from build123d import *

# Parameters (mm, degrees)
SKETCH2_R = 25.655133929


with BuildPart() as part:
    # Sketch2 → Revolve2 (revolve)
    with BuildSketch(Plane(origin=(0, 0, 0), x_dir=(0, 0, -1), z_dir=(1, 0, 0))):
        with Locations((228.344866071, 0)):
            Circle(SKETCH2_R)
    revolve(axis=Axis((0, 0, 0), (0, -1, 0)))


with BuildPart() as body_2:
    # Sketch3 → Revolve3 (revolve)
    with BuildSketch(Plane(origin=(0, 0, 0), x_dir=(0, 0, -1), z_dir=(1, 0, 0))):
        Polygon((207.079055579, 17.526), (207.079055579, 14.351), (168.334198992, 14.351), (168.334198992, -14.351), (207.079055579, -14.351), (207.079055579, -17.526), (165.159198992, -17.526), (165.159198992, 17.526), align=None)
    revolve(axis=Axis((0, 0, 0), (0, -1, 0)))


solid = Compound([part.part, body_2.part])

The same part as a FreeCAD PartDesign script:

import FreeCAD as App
import Part
import Sketcher
from FreeCAD import Vector
Q = App.Units.Quantity


def add_polygon(sketch, points):
    """Adds a closed chain of lines whose ends are joined by coincident constraints."""
    first, n = sketch.GeometryCount, len(points)
    for a, b in zip(points, points[1:] + points[:1]):
        sketch.addGeometry(Part.LineSegment(App.Vector(*a, 0), App.Vector(*b, 0)), False)
    for i in range(n):
        sketch.addConstraint(Sketcher.Constraint("Coincident", first + i, 2, first + (i + 1) % n, 1))

doc = App.newDocument("Part")
body = doc.addObject("PartDesign::Body", "Body")

sketch1 = doc.addObject("Sketcher::SketchObject", "Sketch")
body.addObject(sketch1)
sketch1.AttachmentSupport = (doc.YZ_Plane, [""])
sketch1.MapMode = "FlatFace"
sketch1.addGeometry(Part.Circle(Vector(0, -228, 0), Vector(0, 0, 1), 26), False)
sketch1.addConstraint(Sketcher.Constraint("PointOnObject", 0, 3, -2))
sketch1.addConstraint(Sketcher.Constraint("Diameter", 0, Q("51.310268 mm")))
sketch1.addConstraint(Sketcher.Constraint("DistanceY", 0, 3, -1, 1, Q("228.344866 mm")))
revolution = doc.addObject("PartDesign::Revolution", "Revolution")
body.addObject(revolution)
revolution.Profile = sketch1
revolution.ReferenceAxis = (sketch1, ["H_Axis"])
revolution.Angle = 360
body2 = doc.addObject("PartDesign::Body", "Body001")

sketch2 = doc.addObject("Sketcher::SketchObject", "Sketch001")
body2.addObject(sketch2)
sketch2.AttachmentSupport = (doc.getObject("YZ_Plane001"), [""])
sketch2.MapMode = "FlatFace"
add_polygon(sketch2, [(14.4, -207.1), (17.5, -207.1), (17.5, -165.2), (-17.5, -165.2), (-17.5, -207.1), (-14.4, -207.1), (-14.4, -168.3), (14.4, -168.3)])
sketch2.addConstraint(Sketcher.Constraint("Horizontal", 0))
sketch2.addConstraint(Sketcher.Constraint("Vertical", 1))
sketch2.addConstraint(Sketcher.Constraint("Horizontal", 2))
sketch2.addConstraint(Sketcher.Constraint("Vertical", 3))
sketch2.addConstraint(Sketcher.Constraint("Horizontal", 4))
sketch2.addConstraint(Sketcher.Constraint("Vertical", 5))
sketch2.addConstraint(Sketcher.Constraint("Horizontal", 6))
sketch2.addConstraint(Sketcher.Constraint("Vertical", 7))
sketch2.addConstraint(Sketcher.Constraint("Symmetric", 0, 2, 3, 2, -2))
sketch2.addConstraint(Sketcher.Constraint("Equal", 0, 4))
sketch2.addConstraint(Sketcher.Constraint("DistanceX", 2, 2, 2, 1, Q("1.38 in")))
sketch2.addConstraint(Sketcher.Constraint("DistanceX", 6, 1, 6, 2, Q("1.13 in")))
sketch2.addConstraint(Sketcher.Constraint("DistanceY", 5, 2, 2, 2, Q("0.125 in")))
sketch2.addConstraint(Sketcher.Constraint("DistanceY", 1, 2, -1, 1, Q("165.159199 mm")))
sketch2.addConstraint(Sketcher.Constraint("DistanceY", 1, 1, 1, 2, Q("41.919857 mm")))
revolution2 = doc.addObject("PartDesign::Revolution", "Revolution001")
body2.addObject(revolution2)
revolution2.Profile = sketch2
revolution2.ReferenceAxis = (sketch2, ["H_Axis"])
revolution2.Angle = 360

doc.recompute()
